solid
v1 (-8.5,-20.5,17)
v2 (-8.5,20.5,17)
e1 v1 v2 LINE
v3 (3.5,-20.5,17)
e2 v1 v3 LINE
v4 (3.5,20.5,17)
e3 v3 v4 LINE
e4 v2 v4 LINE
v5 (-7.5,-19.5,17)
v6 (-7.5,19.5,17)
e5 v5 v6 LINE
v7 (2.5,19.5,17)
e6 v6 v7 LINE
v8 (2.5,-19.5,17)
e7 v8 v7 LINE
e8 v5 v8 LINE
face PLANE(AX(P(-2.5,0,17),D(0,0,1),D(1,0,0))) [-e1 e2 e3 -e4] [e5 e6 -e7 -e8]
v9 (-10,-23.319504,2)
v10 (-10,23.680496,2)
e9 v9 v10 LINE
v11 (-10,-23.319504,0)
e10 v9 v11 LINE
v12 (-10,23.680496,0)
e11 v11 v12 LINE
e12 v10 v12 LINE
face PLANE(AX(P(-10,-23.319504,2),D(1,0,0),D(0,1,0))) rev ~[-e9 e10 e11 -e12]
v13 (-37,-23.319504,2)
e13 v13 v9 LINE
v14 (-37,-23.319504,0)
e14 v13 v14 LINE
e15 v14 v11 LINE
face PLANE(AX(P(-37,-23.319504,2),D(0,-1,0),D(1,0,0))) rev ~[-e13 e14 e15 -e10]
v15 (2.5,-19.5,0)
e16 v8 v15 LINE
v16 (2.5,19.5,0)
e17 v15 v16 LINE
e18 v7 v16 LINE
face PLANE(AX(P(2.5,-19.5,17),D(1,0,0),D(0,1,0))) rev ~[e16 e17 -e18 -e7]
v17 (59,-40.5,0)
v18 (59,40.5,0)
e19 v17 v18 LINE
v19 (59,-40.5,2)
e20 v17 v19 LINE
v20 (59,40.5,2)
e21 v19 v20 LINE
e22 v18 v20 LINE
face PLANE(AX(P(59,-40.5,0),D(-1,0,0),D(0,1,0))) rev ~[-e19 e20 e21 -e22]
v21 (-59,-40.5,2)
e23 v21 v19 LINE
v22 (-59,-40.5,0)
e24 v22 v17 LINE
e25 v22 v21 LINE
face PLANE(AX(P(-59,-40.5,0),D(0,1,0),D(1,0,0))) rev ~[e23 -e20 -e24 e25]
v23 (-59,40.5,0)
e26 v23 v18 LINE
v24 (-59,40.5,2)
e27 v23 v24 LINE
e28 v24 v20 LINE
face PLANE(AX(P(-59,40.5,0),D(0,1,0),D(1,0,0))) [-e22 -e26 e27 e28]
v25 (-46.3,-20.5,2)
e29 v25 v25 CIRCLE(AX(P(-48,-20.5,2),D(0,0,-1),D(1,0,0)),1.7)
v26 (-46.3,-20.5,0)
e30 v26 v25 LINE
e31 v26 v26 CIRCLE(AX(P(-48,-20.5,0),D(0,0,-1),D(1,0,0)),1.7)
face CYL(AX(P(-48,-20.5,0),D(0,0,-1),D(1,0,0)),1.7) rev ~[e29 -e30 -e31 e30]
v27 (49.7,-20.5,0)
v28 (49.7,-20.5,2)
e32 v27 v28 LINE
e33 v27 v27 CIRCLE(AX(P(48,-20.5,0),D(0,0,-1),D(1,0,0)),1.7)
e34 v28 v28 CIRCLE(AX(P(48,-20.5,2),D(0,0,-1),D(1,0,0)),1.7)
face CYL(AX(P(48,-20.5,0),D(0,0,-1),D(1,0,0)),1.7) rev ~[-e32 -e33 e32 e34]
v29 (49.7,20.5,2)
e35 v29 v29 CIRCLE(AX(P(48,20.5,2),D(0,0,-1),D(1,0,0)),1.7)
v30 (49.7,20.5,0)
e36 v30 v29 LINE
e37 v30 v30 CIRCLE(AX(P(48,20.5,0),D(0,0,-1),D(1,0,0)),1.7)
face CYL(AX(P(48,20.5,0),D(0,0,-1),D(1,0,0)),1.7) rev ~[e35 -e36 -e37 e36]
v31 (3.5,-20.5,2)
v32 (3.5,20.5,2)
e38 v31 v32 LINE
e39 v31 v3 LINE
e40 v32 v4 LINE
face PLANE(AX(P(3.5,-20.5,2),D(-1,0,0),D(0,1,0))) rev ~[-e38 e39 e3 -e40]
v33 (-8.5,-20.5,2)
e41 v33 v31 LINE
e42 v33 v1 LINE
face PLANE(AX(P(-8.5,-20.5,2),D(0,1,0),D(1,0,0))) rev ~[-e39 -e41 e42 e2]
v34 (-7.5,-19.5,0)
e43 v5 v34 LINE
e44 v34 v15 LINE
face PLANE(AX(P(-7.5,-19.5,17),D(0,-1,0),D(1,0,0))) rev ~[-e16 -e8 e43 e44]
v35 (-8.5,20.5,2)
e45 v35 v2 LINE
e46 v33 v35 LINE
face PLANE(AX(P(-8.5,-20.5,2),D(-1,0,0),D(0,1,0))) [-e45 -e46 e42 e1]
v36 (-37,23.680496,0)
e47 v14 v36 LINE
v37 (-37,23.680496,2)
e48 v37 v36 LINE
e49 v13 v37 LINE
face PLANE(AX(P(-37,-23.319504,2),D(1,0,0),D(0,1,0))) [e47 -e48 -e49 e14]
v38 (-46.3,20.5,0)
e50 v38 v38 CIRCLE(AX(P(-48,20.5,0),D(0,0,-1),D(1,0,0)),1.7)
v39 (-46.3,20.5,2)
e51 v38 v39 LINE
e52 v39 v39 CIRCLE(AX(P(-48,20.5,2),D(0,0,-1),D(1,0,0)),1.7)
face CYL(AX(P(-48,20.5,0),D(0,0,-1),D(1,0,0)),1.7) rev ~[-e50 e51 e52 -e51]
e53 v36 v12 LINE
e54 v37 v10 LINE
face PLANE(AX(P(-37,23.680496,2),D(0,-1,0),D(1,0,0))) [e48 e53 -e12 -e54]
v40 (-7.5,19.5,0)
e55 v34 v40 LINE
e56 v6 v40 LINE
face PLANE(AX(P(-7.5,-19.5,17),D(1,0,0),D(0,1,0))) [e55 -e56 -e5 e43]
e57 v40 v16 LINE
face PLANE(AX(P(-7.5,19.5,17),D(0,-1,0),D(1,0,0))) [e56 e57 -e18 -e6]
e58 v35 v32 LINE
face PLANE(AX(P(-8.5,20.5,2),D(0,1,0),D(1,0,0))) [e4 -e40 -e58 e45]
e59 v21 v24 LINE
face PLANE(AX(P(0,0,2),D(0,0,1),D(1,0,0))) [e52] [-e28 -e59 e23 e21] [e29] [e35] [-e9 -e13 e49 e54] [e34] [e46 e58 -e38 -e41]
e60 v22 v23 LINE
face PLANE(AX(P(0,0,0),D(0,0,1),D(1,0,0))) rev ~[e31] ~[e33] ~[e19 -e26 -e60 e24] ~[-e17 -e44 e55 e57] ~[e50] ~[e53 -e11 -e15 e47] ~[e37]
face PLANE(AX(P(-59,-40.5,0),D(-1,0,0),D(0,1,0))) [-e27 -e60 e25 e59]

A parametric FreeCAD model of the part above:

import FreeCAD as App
import Part
import Sketcher
from FreeCAD import Vector


def add_polygon(sketch, points):
    """Adds a closed chain of lines whose ends are joined by coincident constraints."""
    first, n = sketch.GeometryCount, len(points)
    for a, b in zip(points, points[1:] + points[:1]):
        sketch.addGeometry(Part.LineSegment(App.Vector(*a, 0), App.Vector(*b, 0)), False)
    for i in range(n):
        sketch.addConstraint(Sketcher.Constraint("Coincident", first + i, 2, first + (i + 1) % n, 1))

doc = App.newDocument("Part")
body = doc.addObject("PartDesign::Body", "Body")

sketch1 = body.newObject("Sketcher::SketchObject", "Sketch")
sketch1.AttachmentSupport = (doc.getObject("XY_Plane"), [""])
sketch1.MapMode = "FlatFace"
add_polygon(sketch1, [(-59, 40.5), (-59, -40.5), (59, -40.5), (59, 40.5)])
sketch1.addConstraint([
    Sketcher.Constraint("Vertical", 0),
    Sketcher.Constraint("Horizontal", 1),
    Sketcher.Constraint("Vertical", 2),
    Sketcher.Constraint("Horizontal", 3),
    Sketcher.Constraint("Symmetric", 0, 2, 2, 2, -1, 1),
    Sketcher.Constraint("DistanceX", 1, 1, 1, 2, 118.0),
    Sketcher.Constraint("DistanceY", 0, 2, 0, 1, 81.0),
])
pad1 = body.newObject("PartDesign::Pad", "Pad")
pad1.Profile = sketch1
pad1.Length = 2

sketch2 = body.newObject("Sketcher::SketchObject", "Sketch001")
sketch2.AttachmentSupport = (doc.getObject("XY_Plane"), [""])
sketch2.MapMode = "FlatFace"
sketch2.addGeometry([
    Part.Circle(Vector(-48, -20.5, 0), Vector(0, 0, 1), 1.7),
    Part.Circle(Vector(-48, 20.5, 0), Vector(0, 0, 1), 1.7),
    Part.Circle(Vector(48, -20.5, 0), Vector(0, 0, 1), 1.7),
    Part.Circle(Vector(48, 20.5, 0), Vector(0, 0, 1), 1.7),
], False)
sketch2.addConstraint([
    Sketcher.Constraint("Equal", 0, 1),
    Sketcher.Constraint("Equal", 1, 2),
    Sketcher.Constraint("Equal", 2, 3),
    Sketcher.Constraint("Symmetric", 1, 3, 2, 3, -1, 1),
    Sketcher.Constraint("Symmetric", 0, 3, 3, 3, -1, 1),
    Sketcher.Constraint("Symmetric", 0, 3, 2, 3, -2),
    Sketcher.Constraint("Diameter", 0, 3.4),
    Sketcher.Constraint("DistanceX", 0, 3, -1, 1, 48.0),
    Sketcher.Constraint("DistanceY", 0, 3, 1, 3, 41.0),
])
pocket1 = body.newObject("PartDesign::Pocket", "Pocket")
pocket1.Profile = sketch2
pocket1.Length = 25
pocket1.Reversed = True

sketch3 = body.newObject("Sketcher::SketchObject", "Sketch002")
sketch3.AttachmentSupport = (doc.getObject("XY_Plane"), [""])
sketch3.MapMode = "FlatFace"
sketch3.AttachmentOffset = App.Placement(Vector(0, 0, 2), App.Rotation())
add_polygon(sketch3, [(-8.5, 20.5), (-8.5, -20.5), (3.5, -20.5), (3.5, 20.5)])
sketch3.addConstraint([
    Sketcher.Constraint("Vertical", 0),
    Sketcher.Constraint("Horizontal", 1),
    Sketcher.Constraint("Vertical", 2),
    Sketcher.Constraint("Horizontal", 3),
    Sketcher.Constraint("DistanceX", 1, 1, 1, 2, 12.0),
    Sketcher.Constraint("DistanceY", 0, 2, 0, 1, 41.0),
    Sketcher.Constraint("DistanceX", 0, 2, -1, 1, 8.5),
    Sketcher.Constraint("DistanceY", 0, 2, -1, 1, 20.5),
])
pad2 = body.newObject("PartDesign::Pad", "Pad001")
pad2.Profile = sketch3
pad2.Length = 15

sketch4 = body.newObject("Sketcher::SketchObject", "Sketch003")
sketch4.AttachmentSupport = (doc.getObject("XY_Plane"), [""])
sketch4.MapMode = "FlatFace"
sketch4.AttachmentOffset = App.Placement(Vector(0, 0, 17), App.Rotation())
add_polygon(sketch4, [(-7.5, 19.5), (-7.5, -19.5), (2.5, -19.5), (2.5, 19.5)])
sketch4.addConstraint([
    Sketcher.Constraint("Vertical", 0),
    Sketcher.Constraint("Horizontal", 1),
    Sketcher.Constraint("Vertical", 2),
    Sketcher.Constraint("Horizontal", 3),
    Sketcher.Constraint("DistanceX", 1, 1, 1, 2, 10.0),
    Sketcher.Constraint("DistanceY", 0, 2, 0, 1, 39.0),
    Sketcher.Constraint("DistanceX", 0, 2, -1, 1, 7.5),
    Sketcher.Constraint("DistanceY", 0, 2, -1, 1, 19.5),
])
pocket2 = body.newObject("PartDesign::Pocket", "Pocket001")
pocket2.Profile = sketch4
pocket2.Type = "ThroughAll"

sketch5 = body.newObject("Sketcher::SketchObject", "Sketch004")
sketch5.AttachmentSupport = (doc.getObject("XY_Plane"), [""])
sketch5.MapMode = "FlatFace"
sketch5.AttachmentOffset = App.Placement(Vector(0, 0, 2), App.Rotation())
add_polygon(sketch5, [(-37, 23.680496), (-37, -23.319504), (-10, -23.319504), (-10, 23.680496)])
sketch5.addConstraint([
    Sketcher.Constraint("Vertical", 0),
    Sketcher.Constraint("Horizontal", 1),
    Sketcher.Constraint("Vertical", 2),
    Sketcher.Constraint("Horizontal", 3),
    Sketcher.Constraint("DistanceX", 1, 1, 1, 2, 27.0),
    Sketcher.Constraint("DistanceY", 0, 2, 0, 1, 47.0),
    Sketcher.Constraint("DistanceX", 0, 2, -1, 1, 37.0),
    Sketcher.Constraint("DistanceY", 0, 2, -1, 1, 23.319504),
])
pocket3 = body.newObject("PartDesign::Pocket", "Pocket002")
pocket3.Profile = sketch5
pocket3.Length = 5

doc.recompute()
